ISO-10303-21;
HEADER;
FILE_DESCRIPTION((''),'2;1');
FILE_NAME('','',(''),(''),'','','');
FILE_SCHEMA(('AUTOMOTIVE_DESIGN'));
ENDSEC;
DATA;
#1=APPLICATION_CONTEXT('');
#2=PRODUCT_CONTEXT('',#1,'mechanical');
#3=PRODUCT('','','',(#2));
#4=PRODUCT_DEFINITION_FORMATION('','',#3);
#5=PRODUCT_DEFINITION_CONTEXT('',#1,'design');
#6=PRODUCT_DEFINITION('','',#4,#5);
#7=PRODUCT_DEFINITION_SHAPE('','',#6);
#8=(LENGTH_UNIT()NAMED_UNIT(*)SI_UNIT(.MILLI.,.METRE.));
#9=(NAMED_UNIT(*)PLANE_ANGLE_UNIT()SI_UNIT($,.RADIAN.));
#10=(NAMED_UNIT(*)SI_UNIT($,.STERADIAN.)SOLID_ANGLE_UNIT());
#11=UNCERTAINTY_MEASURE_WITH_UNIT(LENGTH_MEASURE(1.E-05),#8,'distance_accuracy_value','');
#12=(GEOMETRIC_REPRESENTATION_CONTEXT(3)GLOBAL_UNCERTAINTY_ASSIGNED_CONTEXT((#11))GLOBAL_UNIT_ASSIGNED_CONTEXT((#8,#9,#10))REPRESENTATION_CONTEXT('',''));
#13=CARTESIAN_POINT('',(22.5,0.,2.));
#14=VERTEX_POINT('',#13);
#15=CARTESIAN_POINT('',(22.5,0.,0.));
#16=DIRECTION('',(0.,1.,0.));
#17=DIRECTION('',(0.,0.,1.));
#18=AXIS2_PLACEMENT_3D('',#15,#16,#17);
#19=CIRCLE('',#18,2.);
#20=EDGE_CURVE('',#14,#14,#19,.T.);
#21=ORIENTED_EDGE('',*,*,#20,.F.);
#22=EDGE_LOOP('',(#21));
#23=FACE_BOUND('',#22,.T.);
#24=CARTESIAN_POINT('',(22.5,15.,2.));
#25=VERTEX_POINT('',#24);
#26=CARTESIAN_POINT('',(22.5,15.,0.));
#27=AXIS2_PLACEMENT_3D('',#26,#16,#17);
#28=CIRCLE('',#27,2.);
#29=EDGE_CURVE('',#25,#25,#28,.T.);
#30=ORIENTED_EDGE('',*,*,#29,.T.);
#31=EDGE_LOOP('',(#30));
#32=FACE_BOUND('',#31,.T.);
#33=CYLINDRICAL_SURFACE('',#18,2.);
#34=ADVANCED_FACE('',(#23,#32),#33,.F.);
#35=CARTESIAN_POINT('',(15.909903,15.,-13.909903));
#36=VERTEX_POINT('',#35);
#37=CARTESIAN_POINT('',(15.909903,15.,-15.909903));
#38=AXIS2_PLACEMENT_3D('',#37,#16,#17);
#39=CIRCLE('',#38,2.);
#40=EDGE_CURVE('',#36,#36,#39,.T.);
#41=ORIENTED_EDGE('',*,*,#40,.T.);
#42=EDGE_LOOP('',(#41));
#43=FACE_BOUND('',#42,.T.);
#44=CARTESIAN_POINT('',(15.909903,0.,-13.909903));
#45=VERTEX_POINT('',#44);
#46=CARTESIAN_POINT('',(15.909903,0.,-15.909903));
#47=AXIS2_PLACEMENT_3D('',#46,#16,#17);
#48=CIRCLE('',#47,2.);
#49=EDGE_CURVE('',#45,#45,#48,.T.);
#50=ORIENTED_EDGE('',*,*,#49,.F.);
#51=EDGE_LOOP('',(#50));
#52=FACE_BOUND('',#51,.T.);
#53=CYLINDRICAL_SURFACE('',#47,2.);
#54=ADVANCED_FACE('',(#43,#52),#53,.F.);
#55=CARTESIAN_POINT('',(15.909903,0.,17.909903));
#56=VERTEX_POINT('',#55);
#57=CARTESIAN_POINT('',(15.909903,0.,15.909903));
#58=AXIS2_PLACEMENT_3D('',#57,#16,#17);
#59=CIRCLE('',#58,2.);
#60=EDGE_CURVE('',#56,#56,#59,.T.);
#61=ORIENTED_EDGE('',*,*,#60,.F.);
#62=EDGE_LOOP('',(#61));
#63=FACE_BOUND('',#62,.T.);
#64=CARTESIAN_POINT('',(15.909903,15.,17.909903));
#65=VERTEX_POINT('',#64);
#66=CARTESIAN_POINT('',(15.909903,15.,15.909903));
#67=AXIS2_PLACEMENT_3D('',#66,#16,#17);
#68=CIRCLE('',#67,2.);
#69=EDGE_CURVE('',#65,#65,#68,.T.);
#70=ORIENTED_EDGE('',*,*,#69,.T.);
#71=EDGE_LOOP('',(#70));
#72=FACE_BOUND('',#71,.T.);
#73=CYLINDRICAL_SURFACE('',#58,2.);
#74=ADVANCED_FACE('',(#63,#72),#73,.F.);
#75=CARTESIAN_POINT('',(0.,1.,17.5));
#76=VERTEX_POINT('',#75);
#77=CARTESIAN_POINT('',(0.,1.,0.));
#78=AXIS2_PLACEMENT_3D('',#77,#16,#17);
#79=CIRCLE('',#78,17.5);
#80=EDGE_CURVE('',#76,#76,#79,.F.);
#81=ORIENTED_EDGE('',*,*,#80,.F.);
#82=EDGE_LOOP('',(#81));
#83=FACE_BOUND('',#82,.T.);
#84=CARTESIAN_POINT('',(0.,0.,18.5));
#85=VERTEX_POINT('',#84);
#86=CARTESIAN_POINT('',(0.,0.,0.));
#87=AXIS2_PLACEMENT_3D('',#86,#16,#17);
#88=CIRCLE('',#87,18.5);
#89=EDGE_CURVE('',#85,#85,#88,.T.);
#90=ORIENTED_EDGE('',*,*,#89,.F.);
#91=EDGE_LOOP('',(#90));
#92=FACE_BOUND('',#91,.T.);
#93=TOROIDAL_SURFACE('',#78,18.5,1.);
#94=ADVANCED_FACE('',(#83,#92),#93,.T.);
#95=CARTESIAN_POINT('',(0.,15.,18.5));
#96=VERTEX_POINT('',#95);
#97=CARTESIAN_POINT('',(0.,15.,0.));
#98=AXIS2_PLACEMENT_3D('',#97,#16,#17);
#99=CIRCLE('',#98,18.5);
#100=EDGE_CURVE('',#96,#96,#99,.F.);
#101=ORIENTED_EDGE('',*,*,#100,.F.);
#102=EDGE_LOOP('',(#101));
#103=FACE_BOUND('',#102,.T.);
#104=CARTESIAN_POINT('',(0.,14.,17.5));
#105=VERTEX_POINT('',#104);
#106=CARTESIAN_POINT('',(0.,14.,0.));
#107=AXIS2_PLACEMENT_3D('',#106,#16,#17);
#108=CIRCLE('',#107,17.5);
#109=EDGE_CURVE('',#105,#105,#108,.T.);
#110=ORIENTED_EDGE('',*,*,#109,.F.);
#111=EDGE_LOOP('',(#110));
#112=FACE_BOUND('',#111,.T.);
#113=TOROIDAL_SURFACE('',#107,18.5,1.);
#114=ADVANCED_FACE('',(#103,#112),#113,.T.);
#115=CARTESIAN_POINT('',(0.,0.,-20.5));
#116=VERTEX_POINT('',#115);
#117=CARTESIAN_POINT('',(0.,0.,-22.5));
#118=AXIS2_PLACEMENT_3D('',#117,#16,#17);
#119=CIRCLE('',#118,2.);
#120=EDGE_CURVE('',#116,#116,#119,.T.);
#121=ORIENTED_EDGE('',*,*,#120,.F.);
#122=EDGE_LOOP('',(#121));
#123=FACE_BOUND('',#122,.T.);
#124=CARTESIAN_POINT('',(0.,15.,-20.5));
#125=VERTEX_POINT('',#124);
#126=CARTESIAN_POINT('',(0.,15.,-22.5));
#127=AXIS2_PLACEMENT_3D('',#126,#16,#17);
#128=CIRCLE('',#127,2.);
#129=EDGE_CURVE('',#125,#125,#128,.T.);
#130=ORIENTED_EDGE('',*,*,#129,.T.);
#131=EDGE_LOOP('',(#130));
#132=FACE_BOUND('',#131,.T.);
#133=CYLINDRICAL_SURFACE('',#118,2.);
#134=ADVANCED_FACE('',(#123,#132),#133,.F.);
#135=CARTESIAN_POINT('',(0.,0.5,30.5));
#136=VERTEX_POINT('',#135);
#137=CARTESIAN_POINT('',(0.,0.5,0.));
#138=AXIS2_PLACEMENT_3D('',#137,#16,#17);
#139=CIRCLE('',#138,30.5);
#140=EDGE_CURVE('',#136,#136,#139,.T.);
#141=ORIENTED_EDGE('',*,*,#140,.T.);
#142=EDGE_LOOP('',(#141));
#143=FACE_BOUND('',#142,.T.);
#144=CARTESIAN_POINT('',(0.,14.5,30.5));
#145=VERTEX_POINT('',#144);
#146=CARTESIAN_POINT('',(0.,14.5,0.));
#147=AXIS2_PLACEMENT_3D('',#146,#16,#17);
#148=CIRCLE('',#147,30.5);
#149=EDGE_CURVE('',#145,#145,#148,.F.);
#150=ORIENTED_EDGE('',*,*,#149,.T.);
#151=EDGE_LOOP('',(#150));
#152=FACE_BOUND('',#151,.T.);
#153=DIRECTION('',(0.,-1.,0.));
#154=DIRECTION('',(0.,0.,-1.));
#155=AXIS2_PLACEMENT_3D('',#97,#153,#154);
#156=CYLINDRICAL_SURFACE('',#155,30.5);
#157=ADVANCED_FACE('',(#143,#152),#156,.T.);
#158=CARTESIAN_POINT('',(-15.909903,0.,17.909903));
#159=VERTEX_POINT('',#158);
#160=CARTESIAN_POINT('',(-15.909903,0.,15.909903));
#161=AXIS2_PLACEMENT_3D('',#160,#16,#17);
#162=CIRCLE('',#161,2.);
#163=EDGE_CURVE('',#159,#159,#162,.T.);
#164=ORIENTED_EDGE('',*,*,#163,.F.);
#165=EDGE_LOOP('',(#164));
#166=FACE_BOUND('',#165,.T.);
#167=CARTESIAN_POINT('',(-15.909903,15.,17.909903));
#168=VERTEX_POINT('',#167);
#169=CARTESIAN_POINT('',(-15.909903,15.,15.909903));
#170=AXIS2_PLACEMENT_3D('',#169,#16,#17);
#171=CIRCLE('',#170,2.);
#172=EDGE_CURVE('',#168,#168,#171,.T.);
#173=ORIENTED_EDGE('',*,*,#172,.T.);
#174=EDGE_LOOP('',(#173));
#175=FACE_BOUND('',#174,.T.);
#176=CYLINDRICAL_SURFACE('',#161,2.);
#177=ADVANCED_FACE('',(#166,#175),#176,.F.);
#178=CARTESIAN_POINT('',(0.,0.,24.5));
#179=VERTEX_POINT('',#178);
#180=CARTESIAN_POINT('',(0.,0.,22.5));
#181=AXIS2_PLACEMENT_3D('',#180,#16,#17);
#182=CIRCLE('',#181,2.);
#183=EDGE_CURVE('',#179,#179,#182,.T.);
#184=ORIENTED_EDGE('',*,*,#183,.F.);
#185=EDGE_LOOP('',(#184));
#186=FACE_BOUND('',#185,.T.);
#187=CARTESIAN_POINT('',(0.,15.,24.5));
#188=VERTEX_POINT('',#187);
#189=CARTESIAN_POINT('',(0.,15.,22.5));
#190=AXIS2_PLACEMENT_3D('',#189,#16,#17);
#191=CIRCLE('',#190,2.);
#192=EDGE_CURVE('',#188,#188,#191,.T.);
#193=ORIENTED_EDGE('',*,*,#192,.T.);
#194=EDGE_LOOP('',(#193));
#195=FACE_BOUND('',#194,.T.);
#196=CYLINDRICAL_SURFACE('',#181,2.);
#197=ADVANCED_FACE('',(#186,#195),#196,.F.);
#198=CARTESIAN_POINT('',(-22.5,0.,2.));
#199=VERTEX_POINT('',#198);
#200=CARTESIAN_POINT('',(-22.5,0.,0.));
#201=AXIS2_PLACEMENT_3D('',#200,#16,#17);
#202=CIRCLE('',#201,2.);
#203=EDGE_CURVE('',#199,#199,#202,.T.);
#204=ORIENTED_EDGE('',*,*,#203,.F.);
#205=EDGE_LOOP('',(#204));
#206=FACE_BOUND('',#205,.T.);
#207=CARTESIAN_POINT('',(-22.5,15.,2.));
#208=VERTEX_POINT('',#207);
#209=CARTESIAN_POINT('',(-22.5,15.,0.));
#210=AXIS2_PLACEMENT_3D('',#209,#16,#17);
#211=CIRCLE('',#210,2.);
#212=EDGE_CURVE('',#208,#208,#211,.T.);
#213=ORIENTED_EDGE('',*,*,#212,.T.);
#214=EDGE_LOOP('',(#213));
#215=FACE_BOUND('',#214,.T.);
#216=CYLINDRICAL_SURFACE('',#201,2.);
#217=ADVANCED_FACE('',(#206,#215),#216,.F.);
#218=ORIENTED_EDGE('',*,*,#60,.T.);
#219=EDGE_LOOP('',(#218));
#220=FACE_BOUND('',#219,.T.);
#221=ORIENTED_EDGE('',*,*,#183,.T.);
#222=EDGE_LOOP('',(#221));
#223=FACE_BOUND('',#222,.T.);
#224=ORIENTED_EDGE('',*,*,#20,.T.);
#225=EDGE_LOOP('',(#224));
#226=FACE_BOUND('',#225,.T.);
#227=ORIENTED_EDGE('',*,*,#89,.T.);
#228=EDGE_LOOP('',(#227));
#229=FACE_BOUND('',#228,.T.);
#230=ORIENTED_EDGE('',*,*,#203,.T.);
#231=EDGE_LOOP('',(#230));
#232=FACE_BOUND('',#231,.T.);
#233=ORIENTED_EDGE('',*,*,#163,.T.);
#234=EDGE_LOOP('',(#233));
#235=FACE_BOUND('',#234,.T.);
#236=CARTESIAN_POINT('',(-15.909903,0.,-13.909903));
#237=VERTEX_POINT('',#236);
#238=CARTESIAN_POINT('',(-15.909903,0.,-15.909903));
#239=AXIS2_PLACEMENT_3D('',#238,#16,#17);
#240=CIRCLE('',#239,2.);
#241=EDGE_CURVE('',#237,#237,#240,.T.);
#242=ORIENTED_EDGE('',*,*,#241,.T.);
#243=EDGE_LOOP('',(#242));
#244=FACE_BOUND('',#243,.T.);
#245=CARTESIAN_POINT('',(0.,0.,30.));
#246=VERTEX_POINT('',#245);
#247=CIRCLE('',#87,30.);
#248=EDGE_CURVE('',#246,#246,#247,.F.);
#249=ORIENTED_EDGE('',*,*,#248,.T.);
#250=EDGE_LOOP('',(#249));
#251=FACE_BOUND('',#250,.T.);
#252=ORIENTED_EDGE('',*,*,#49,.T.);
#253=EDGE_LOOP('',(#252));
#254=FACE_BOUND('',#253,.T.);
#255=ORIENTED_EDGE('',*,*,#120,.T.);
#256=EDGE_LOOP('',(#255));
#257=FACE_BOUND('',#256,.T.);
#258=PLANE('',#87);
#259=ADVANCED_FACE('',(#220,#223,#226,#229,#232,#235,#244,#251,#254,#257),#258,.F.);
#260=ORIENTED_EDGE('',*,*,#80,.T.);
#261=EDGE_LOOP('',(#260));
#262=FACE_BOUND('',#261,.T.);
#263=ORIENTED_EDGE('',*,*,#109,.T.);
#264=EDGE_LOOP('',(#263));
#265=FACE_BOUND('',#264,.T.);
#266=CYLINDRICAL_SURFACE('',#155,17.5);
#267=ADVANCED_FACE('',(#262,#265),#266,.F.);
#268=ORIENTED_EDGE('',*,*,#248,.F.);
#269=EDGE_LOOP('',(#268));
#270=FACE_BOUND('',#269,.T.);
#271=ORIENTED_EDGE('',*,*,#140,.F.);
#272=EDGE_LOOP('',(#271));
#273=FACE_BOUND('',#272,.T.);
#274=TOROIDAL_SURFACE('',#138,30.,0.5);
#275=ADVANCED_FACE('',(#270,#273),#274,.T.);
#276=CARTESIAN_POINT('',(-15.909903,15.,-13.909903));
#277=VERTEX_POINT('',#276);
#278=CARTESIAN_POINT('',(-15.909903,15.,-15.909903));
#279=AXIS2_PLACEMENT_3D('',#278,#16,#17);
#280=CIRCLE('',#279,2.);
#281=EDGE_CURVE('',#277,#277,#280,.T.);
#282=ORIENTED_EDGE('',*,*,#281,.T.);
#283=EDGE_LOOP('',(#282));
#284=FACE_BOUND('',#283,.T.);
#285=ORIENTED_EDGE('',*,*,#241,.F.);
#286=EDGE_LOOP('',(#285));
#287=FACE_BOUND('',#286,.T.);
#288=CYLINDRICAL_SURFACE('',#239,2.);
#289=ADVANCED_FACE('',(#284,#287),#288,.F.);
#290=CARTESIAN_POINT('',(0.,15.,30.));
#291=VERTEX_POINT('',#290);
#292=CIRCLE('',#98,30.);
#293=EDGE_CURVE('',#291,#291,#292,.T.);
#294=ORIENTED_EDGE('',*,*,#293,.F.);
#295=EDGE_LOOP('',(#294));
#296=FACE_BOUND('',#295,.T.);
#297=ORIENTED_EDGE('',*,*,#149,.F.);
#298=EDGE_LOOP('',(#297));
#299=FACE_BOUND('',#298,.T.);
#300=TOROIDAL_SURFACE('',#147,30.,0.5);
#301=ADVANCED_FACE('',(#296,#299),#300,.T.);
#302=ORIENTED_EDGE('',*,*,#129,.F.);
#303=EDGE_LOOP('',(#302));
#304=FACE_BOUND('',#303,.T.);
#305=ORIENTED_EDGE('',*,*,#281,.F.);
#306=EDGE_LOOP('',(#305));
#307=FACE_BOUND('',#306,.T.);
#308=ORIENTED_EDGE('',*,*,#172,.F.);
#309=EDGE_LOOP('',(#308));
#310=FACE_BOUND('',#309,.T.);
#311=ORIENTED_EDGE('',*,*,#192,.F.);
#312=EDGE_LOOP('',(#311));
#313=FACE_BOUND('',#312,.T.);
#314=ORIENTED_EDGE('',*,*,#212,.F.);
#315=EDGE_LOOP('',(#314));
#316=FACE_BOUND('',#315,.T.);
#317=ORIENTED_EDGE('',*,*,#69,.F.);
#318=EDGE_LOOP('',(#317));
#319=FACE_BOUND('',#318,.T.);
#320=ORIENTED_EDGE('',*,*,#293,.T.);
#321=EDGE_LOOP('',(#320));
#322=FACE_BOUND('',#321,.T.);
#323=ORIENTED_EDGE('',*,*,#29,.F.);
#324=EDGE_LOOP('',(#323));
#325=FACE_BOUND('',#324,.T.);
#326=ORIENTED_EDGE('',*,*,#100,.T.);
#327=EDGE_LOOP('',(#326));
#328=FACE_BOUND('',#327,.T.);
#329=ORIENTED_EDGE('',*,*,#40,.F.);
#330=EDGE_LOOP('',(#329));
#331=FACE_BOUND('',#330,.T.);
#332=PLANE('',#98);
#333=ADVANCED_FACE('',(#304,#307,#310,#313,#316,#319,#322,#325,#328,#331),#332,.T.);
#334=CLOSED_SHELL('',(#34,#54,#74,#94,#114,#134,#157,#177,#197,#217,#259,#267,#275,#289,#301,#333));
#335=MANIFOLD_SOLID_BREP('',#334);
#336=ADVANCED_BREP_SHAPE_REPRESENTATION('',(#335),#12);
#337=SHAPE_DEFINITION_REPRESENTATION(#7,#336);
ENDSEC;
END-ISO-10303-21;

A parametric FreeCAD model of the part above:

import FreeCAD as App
import Part
import Sketcher
from FreeCAD import Vector


def edges_at(feature, points):
    """Names of the edges that pass closest to the given points."""
    edges = feature.Shape.Edges
    near = lambda p: min(range(len(edges)), key=lambda i: edges[i].distToShape(Part.Vertex(*p))[0])
    return sorted({f"Edge{near(p) + 1}" for p in points})

doc = App.newDocument("Part")
body = doc.addObject("PartDesign::Body", "Body")

sketch1 = body.newObject("Sketcher::SketchObject", "Sketch")
sketch1.AttachmentSupport = (doc.getObject("XZ_Plane"), [""])
sketch1.MapMode = "FlatFace"
sketch1.addGeometry([
    Part.Circle(Vector(0, 0, 0), Vector(0, 0, 1), 30),
    Part.Circle(Vector(0, 0, 0), Vector(0, 0, 1), 18),
], False)
sketch1.addConstraint([
    Sketcher.Constraint("Coincident", 0, 3, -1, 1),
    Sketcher.Constraint("Coincident", 1, 3, -1, 1),
    Sketcher.Constraint("Diameter", 0, 61.0),
    Sketcher.Constraint("Diameter", 1, 35.0),
])
pad1 = body.newObject("PartDesign::Pad", "Pad")
pad1.Profile = sketch1
pad1.Length = 15
pad1.Reversed = True

sketch2 = body.newObject("Sketcher::SketchObject", "Sketch001")
sketch2.AttachmentSupport = (doc.getObject("XZ_Plane"), [""])
sketch2.MapMode = "FlatFace"
sketch2.AttachmentOffset = App.Placement(Vector(0, 0, -15), App.Rotation())
sketch2.addGeometry([
    Part.Circle(Vector(0, -22.5, 0), Vector(0, 0, 1), 2),
    Part.Circle(Vector(15.9, -15.9, 0), Vector(0, 0, 1), 2),
    Part.Circle(Vector(22.5, 0, 0), Vector(0, 0, 1), 2),
    Part.Circle(Vector(15.9, 15.9, 0), Vector(0, 0, 1), 2),
    Part.Circle(Vector(0, 22.5, 0), Vector(0, 0, 1), 2),
    Part.Circle(Vector(-15.9, 15.9, 0), Vector(0, 0, 1), 2),
    Part.Circle(Vector(-22.5, 0, 0), Vector(0, 0, 1), 2),
    Part.Circle(Vector(-15.9, -15.9, 0), Vector(0, 0, 1), 2),
], False)
sketch2.addConstraint([
    Sketcher.Constraint("Equal", 0, 1),
    Sketcher.Constraint("Equal", 1, 2),
    Sketcher.Constraint("Equal", 2, 3),
    Sketcher.Constraint("Equal", 3, 4),
    Sketcher.Constraint("Equal", 4, 5),
    Sketcher.Constraint("Equal", 5, 6),
    Sketcher.Constraint("Equal", 6, 7),
    Sketcher.Constraint("Symmetric", 0, 3, 4, 3, -1, 1),
    Sketcher.Constraint("Symmetric", 1, 3, 5, 3, -1, 1),
    Sketcher.Constraint("Symmetric", 2, 3, 6, 3, -1, 1),
    Sketcher.Constraint("Symmetric", 3, 3, 7, 3, -1, 1),
    Sketcher.Constraint("Symmetric", 3, 3, 5, 3, -2),
    Sketcher.Constraint("PointOnObject", 0, 3, -2),
    Sketcher.Constraint("PointOnObject", 2, 3, -1),
    Sketcher.Constraint("Diameter", 0, 4.0),
    Sketcher.Constraint("DistanceY", 0, 3, 4, 3, 45.0),
    Sketcher.Constraint("DistanceX", -1, 1, 2, 3, 22.5),
    Sketcher.Constraint("DistanceX", -1, 1, 1, 3, 15.909903),
    Sketcher.Constraint("DistanceY", 1, 3, -1, 1, 15.909903),
])
pocket1 = body.newObject("PartDesign::Pocket", "Pocket")
pocket1.Profile = sketch2
pocket1.Length = 15
pocket1.Reversed = True
doc.recompute()

fillet = body.newObject("PartDesign::Fillet", "Fillet")
fillet.Base = (pocket1, edges_at(pocket1, [(0, 0, -17.5), (0, 15, -17.5)]))
fillet.Radius = 1
doc.recompute()

fillet2 = body.newObject("PartDesign::Fillet", "Fillet001")
fillet2.Base = (fillet, edges_at(fillet, [(0, 0, -30.5), (0, 15, -30.5)]))
fillet2.Radius = 0.5

doc.recompute()
